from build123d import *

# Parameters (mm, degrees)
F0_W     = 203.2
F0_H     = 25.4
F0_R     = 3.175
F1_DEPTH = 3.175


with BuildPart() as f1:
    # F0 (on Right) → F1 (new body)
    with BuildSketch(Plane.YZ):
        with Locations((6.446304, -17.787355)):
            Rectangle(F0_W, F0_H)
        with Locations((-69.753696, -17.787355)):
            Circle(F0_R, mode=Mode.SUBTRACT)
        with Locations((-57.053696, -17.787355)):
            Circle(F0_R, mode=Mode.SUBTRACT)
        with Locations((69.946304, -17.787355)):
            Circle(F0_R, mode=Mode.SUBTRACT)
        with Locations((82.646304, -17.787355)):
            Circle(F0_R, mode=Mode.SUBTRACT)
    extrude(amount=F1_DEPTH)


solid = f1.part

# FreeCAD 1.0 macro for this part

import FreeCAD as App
import Part
import Sketcher
from FreeCAD import Vector
Q = App.Units.Quantity

doc = App.newDocument("Part")
body = doc.addObject("PartDesign::Body", "Body")

# Sketch on YZ plane
sketch1 = body.newObject("Sketcher::SketchObject", "Sketch")
sketch1.AttachmentSupport = (doc.getObject("YZ_Plane"), [""])
sketch1.MapMode = "FlatFace"
sketch1.addGeometry(Part.LineSegment(Vector(-95.153696, -5.087355, 0), Vector(-95.153696, -30.487355, 0)), False)
sketch1.addGeometry(Part.LineSegment(Vector(-95.153696, -30.487355, 0), Vector(108.046304, -30.487355, 0)), False)
sketch1.addGeometry(Part.LineSegment(Vector(108.046304, -30.487355, 0), Vector(108.046304, -5.087355, 0)), False)
sketch1.addGeometry(Part.LineSegment(Vector(108.046304, -5.087355, 0), Vector(-95.153696, -5.087355, 0)), False)
sketch1.addGeometry(Part.Circle(Vector(-69.753696, -17.787355, 0), Vector(0, 0, 1), 3.175), False)
sketch1.addGeometry(Part.Circle(Vector(-57.053696, -17.787355, 0), Vector(0, 0, 1), 3.175), False)
sketch1.addGeometry(Part.Circle(Vector(69.946304, -17.787355, 0), Vector(0, 0, 1), 3.175), False)
sketch1.addGeometry(Part.Circle(Vector(82.646304, -17.787355, 0), Vector(0, 0, 1), 3.175), False)
sketch1.addConstraint(Sketcher.Constraint("Coincident", 0, 2, 1, 1))
sketch1.addConstraint(Sketcher.Constraint("Coincident", 1, 2, 2, 1))
sketch1.addConstraint(Sketcher.Constraint("Coincident", 2, 2, 3, 1))
sketch1.addConstraint(Sketcher.Constraint("Coincident", 3, 2, 0, 1))
sketch1.addConstraint(Sketcher.Constraint("Vertical", 0))
sketch1.addConstraint(Sketcher.Constraint("Horizontal", 1))
sketch1.addConstraint(Sketcher.Constraint("Vertical", 2))
sketch1.addConstraint(Sketcher.Constraint("Horizontal", 3))
sketch1.addConstraint(Sketcher.Constraint("Equal", 4, 5))
sketch1.addConstraint(Sketcher.Constraint("Equal", 5, 6))
sketch1.addConstraint(Sketcher.Constraint("Equal", 6, 7))
sketch1.addConstraint(Sketcher.Constraint("Horizontal", 4, 3, 5, 3))
sketch1.addConstraint(Sketcher.Constraint("Horizontal", 5, 3, 6, 3))
sketch1.addConstraint(Sketcher.Constraint("Horizontal", 6, 3, 7, 3))
sketch1.addConstraint(Sketcher.Constraint("Diameter", 4, Q("0.25 in")))
sketch1.addConstraint(Sketcher.Constraint("DistanceX", 1, 1, 1, 2, Q("8 in")))
sketch1.addConstraint(Sketcher.Constraint("DistanceY", 0, 2, 0, 1, Q("1 in")))
sketch1.addConstraint(Sketcher.Constraint("DistanceX", 5, 3, 6, 3, Q("5 in")))
sketch1.addConstraint(Sketcher.Constraint("DistanceX", 4, 3, 7, 3, Q("6 in")))
sketch1.addConstraint(Sketcher.Constraint("DistanceX", 0, 2, 4, 3, Q("1 in")))
sketch1.addConstraint(Sketcher.Constraint("DistanceX", 4, 3, 5, 3, Q("0.5 in")))
sketch1.addConstraint(Sketcher.Constraint("DistanceY", 0, 2, 4, 3, Q("0.5 in")))
sketch1.addConstraint(Sketcher.Constraint("DistanceX", 4, 3, -1, 1, Q("69.753696 mm")))
sketch1.addConstraint(Sketcher.Constraint("DistanceY", 4, 3, -1, 1, Q("17.787355 mm")))
pad1 = body.newObject("PartDesign::Pad", "Pad")
pad1.Profile = sketch1
pad1.Length = Q("0.125 in")

doc.recompute()
